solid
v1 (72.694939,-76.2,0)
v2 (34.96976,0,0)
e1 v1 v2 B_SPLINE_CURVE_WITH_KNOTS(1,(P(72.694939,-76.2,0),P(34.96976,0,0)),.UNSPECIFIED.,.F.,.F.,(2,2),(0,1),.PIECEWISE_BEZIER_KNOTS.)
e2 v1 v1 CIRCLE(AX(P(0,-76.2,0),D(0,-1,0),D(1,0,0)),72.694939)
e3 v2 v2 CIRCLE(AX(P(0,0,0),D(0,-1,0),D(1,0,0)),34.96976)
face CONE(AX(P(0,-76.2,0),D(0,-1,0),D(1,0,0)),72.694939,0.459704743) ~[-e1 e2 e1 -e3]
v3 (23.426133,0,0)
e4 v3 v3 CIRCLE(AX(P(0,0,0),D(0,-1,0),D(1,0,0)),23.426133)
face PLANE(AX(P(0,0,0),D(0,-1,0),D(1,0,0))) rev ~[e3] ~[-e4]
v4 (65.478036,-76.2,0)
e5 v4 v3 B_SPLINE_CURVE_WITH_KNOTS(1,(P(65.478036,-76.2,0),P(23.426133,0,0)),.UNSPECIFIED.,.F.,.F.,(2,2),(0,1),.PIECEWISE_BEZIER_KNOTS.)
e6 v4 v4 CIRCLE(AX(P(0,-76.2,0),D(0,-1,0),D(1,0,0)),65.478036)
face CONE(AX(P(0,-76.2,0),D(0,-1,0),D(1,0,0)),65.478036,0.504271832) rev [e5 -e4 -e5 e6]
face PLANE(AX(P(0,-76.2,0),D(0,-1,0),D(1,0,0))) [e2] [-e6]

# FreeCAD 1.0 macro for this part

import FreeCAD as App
import Part
import Sketcher
from FreeCAD import Vector

doc = App.newDocument("Part")
body = doc.addObject("PartDesign::Body", "Body")

# Sketch on XZ plane
sketch1 = body.newObject("Sketcher::SketchObject", "Sketch")
sketch1.AttachmentSupport = (doc.getObject("XZ_Plane"), [""])
sketch1.MapMode = "FlatFace"
sketch1.AttachmentOffset = App.Placement(Vector(0, 0, 76.2), App.Rotation())
sketch1.addGeometry(Part.Circle(Vector(0, 0, 0), Vector(0, 0, 1), 72.694939), False)
sketch1.addConstraint([
    Sketcher.Constraint("Coincident", 0, 3, -1, 1),
    Sketcher.Constraint("Diameter", 0, 145.389878),
])

# Sketch on XZ plane
sketch2 = body.newObject("Sketcher::SketchObject", "Sketch001")
sketch2.AttachmentSupport = (doc.getObject("XZ_Plane"), [""])
sketch2.MapMode = "FlatFace"
sketch2.addGeometry(Part.Circle(Vector(0, 0, 0), Vector(0, 0, 1), 34.96976), False)
sketch2.addConstraint([
    Sketcher.Constraint("Coincident", 0, 3, -1, 1),
    Sketcher.Constraint("Diameter", 0, 69.93952),
])

additiveloft = body.newObject("PartDesign::AdditiveLoft", "AdditiveLoft")
additiveloft.Profile = sketch1
additiveloft.Sections = [sketch2]

# Sketch on XZ plane
sketch3 = body.newObject("Sketcher::SketchObject", "Sketch002")
sketch3.AttachmentSupport = (doc.getObject("XZ_Plane"), [""])
sketch3.MapMode = "FlatFace"
sketch3.AttachmentOffset = App.Placement(Vector(0, 0, 76.2), App.Rotation())
sketch3.addGeometry(Part.Circle(Vector(0, 0, 0), Vector(0, 0, 1), 65.478036), False)
sketch3.addConstraint([
    Sketcher.Constraint("Coincident", 0, 3, -1, 1),
    Sketcher.Constraint("Diameter", 0, 130.956072),
])

# Sketch on XZ plane
sketch4 = body.newObject("Sketcher::SketchObject", "Sketch003")
sketch4.AttachmentSupport = (doc.getObject("XZ_Plane"), [""])
sketch4.MapMode = "FlatFace"
sketch4.addGeometry(Part.Circle(Vector(0, 0, 0), Vector(0, 0, 1), 23.426133), False)
sketch4.addConstraint([
    Sketcher.Constraint("Coincident", 0, 3, -1, 1),
    Sketcher.Constraint("Diameter", 0, 46.852266),
])

subtractiveloft = body.newObject("PartDesign::SubtractiveLoft", "SubtractiveLoft")
subtractiveloft.Profile = sketch3
subtractiveloft.Sections = [sketch4]

doc.recompute()
